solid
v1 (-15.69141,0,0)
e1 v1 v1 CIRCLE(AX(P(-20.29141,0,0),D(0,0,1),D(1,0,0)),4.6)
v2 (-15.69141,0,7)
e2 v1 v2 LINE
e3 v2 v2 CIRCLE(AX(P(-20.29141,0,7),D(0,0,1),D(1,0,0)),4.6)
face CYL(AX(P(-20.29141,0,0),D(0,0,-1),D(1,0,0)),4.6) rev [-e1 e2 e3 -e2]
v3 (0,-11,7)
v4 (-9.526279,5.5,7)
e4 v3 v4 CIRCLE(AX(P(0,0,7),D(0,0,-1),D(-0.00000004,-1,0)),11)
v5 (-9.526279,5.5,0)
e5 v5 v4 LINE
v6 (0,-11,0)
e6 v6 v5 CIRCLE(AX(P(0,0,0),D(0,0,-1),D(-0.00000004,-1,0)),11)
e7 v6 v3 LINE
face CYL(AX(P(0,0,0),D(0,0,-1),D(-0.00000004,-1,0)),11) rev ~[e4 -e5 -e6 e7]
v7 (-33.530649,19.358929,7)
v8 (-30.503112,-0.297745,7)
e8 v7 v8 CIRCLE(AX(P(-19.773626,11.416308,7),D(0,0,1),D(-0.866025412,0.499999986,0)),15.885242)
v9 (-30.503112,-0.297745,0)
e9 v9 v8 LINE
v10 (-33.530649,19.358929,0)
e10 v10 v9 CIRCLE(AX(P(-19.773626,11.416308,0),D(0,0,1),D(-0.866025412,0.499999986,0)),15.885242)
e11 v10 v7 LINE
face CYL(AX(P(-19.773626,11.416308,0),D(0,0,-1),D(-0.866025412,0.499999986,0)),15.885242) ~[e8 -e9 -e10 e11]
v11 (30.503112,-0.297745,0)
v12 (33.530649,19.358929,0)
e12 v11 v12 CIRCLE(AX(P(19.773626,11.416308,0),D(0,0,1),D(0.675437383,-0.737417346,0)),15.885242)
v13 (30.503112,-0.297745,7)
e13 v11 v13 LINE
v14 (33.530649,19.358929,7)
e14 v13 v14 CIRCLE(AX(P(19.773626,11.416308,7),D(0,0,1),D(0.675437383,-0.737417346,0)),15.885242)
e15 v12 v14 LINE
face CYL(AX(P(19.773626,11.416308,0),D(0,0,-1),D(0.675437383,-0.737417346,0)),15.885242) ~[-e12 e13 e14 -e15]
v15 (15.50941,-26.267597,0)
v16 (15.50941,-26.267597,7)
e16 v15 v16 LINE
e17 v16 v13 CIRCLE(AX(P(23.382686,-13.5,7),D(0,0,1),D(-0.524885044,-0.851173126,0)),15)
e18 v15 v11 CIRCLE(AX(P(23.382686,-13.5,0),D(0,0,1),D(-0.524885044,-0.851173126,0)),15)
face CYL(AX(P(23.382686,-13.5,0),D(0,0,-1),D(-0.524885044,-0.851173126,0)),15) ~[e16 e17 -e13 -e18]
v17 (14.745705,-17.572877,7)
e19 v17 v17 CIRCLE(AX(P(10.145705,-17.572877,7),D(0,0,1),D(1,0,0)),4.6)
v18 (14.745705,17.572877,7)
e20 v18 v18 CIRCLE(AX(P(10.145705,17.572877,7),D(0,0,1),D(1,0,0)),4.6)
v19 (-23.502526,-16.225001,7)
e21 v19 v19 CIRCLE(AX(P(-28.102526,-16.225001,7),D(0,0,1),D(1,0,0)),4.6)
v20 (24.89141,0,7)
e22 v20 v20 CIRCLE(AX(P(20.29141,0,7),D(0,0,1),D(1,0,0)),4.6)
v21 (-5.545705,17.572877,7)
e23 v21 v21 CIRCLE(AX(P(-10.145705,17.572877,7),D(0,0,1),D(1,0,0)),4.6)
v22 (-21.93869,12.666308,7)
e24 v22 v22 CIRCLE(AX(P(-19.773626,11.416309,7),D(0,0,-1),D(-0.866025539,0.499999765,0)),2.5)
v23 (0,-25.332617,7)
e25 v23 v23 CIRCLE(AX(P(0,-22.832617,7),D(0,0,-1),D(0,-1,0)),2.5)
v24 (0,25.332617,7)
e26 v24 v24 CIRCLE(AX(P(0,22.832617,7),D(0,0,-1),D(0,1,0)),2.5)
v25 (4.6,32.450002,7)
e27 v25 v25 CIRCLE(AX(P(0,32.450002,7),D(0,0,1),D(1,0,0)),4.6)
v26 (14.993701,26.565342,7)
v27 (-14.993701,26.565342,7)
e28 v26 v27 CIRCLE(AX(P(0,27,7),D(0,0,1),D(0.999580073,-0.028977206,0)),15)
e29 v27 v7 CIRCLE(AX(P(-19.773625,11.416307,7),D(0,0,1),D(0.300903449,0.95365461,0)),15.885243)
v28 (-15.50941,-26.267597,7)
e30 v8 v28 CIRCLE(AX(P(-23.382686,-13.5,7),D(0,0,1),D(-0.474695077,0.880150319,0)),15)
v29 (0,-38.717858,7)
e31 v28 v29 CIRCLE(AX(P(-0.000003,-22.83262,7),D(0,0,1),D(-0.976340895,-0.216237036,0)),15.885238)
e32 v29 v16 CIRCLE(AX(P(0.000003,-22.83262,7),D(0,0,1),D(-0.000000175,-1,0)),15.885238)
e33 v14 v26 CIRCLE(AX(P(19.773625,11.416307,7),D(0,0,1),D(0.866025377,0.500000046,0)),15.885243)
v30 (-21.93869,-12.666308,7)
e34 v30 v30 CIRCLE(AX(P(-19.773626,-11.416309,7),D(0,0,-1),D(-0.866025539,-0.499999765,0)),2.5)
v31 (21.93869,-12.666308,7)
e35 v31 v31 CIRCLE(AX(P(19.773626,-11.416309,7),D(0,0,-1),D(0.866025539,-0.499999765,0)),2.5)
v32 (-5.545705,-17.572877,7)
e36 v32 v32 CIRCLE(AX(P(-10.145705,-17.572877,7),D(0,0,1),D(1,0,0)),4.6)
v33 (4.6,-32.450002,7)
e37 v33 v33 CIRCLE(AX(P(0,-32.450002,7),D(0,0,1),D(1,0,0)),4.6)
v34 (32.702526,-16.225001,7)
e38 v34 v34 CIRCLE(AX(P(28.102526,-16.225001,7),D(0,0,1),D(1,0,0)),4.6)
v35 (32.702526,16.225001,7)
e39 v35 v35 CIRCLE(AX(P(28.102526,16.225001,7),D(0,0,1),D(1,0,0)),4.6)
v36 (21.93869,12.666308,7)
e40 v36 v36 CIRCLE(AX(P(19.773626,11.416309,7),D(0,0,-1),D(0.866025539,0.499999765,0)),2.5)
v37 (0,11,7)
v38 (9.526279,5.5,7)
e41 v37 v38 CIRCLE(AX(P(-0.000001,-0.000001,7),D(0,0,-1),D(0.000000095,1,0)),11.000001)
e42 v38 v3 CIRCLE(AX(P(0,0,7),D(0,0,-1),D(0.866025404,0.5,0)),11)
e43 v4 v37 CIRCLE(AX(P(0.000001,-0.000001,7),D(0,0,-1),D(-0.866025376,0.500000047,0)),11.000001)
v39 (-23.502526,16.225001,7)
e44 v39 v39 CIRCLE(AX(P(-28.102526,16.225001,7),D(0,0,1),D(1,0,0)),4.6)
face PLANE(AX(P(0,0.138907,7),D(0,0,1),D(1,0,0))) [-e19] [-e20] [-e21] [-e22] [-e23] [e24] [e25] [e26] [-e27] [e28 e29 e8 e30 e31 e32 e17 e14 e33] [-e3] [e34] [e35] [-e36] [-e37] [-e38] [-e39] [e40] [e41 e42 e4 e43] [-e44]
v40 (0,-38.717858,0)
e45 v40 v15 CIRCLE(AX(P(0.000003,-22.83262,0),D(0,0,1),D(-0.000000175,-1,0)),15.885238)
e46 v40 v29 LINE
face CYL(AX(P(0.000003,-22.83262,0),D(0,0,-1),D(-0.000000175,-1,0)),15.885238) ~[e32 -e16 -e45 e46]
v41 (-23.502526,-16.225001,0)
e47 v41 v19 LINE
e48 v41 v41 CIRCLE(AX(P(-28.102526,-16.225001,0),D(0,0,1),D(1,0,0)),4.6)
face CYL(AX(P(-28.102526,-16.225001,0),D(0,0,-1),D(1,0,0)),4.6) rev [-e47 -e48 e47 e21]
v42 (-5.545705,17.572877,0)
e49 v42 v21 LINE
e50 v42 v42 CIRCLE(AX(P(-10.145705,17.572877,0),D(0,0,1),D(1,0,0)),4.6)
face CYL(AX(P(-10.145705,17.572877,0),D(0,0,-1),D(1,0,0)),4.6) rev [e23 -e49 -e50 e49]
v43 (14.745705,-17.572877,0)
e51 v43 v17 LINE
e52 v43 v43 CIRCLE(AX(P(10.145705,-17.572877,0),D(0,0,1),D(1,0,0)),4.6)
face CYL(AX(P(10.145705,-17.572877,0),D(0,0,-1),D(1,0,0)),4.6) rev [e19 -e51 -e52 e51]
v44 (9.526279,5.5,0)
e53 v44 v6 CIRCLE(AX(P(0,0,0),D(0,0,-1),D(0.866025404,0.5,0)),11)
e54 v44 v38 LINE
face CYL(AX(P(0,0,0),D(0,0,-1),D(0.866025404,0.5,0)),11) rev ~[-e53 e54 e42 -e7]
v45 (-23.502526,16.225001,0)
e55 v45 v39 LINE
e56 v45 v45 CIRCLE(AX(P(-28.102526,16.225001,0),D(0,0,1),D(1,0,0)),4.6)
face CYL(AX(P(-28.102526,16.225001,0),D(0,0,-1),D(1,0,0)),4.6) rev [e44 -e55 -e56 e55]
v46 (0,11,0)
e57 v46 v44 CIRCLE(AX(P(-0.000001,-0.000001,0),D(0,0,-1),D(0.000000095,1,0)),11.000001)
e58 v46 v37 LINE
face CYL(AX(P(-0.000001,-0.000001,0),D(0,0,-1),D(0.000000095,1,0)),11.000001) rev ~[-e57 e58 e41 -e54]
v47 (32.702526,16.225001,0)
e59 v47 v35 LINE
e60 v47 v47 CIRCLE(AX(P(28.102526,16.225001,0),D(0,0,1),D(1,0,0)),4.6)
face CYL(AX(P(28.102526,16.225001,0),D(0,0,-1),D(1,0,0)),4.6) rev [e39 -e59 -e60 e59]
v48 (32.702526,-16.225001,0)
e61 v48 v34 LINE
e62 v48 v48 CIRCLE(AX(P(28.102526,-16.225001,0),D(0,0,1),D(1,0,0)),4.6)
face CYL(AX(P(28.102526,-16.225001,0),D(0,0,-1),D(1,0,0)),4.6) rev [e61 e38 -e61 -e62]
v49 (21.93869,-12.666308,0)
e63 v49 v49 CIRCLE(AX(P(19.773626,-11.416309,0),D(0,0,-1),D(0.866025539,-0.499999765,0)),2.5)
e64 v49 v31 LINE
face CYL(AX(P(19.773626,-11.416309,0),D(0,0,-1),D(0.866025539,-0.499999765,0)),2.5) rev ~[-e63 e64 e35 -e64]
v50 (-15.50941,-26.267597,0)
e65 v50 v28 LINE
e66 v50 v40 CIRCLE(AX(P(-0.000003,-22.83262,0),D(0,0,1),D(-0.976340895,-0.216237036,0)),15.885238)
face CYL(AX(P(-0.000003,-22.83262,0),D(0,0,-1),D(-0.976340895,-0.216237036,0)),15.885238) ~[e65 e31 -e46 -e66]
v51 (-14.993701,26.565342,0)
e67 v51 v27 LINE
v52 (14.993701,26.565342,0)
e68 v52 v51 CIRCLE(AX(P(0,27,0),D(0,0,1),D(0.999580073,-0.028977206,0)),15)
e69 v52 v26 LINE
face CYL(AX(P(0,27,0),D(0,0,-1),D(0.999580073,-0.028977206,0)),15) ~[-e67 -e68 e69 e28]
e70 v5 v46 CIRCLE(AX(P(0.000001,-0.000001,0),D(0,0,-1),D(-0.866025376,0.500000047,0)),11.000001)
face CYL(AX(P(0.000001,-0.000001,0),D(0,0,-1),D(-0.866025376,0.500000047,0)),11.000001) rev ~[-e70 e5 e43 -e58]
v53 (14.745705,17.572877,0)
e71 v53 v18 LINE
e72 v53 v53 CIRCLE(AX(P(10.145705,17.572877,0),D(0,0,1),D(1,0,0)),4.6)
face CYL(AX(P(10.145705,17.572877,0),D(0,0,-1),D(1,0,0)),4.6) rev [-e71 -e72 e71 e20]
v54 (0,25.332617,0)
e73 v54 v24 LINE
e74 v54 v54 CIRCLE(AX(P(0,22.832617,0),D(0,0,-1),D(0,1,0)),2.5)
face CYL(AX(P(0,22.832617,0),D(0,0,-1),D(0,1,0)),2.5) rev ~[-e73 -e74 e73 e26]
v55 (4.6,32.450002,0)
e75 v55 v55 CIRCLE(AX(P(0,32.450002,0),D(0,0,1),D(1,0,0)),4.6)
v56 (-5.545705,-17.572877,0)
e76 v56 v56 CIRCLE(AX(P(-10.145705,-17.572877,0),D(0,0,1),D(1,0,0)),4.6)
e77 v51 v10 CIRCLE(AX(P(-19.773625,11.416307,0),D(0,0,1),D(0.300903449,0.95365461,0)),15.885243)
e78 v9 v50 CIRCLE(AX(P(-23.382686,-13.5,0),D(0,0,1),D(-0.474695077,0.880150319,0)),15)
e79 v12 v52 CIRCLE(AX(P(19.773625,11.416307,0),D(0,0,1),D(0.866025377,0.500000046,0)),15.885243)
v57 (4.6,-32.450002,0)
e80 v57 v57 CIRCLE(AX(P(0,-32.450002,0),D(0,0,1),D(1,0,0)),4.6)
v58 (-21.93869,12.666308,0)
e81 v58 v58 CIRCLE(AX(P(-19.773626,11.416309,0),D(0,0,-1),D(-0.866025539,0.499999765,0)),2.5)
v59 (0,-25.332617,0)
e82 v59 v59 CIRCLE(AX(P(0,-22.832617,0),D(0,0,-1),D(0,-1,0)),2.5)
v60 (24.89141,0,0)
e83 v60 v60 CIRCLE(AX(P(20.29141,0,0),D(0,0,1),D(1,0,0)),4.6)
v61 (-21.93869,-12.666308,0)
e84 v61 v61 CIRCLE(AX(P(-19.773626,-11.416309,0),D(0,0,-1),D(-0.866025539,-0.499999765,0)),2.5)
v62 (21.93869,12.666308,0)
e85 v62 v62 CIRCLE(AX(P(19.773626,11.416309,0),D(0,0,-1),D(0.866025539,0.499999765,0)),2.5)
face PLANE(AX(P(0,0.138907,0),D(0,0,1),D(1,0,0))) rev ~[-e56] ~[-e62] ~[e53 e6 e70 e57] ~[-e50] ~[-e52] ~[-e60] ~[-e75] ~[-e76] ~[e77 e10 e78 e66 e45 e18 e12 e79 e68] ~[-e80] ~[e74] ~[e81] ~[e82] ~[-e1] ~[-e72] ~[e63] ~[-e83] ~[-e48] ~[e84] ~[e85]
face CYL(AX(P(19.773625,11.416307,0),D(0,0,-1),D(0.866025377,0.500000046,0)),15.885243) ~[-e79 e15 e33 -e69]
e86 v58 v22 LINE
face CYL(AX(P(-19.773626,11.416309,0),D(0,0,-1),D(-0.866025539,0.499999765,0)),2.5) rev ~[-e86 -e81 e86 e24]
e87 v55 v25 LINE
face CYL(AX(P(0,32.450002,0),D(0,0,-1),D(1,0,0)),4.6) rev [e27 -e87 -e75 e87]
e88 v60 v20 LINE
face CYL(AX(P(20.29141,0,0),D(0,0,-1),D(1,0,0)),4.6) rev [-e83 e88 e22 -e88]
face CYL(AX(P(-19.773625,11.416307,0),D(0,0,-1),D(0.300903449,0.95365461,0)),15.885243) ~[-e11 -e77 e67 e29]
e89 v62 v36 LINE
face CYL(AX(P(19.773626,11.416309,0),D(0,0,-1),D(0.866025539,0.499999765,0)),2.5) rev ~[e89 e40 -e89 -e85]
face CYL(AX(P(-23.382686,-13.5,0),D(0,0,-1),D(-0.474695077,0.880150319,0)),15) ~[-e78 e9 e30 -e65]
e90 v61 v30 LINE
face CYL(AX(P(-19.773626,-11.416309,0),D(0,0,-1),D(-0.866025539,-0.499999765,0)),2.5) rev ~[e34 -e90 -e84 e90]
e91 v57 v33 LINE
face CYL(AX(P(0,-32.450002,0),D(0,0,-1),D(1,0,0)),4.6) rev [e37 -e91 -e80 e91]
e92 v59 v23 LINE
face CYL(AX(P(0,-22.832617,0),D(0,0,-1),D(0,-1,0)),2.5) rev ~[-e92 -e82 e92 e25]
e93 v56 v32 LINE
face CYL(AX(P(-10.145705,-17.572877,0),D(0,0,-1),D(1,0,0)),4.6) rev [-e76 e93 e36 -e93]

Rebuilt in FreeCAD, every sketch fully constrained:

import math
import FreeCAD as App
import Part
import Sketcher

doc = App.newDocument("Part")
params = doc.addObject("Spreadsheet::Sheet", "Params")
for row, (alias, value) in enumerate([
    ("sketch1_diameter", "5 mm"),
    ("sketch1_radius", "15 mm"),
    ("sketch1_radius2", "11.000001 mm"),
    ("sketch1_diameter2", "9.2 mm"),
    ("pad1_length", "7 mm"),
], start=1):
    params.set(f"A{row}", alias)
    params.set(f"B{row}", "=" + value)
    params.setAlias(f"B{row}", alias)

body = doc.addObject("PartDesign::Body", "Body")

sketch1 = body.newObject("Sketcher::SketchObject", "Sketch")
sketch1.AttachmentSupport = (doc.getObject("XY_Plane"), [""])
sketch1.MapMode = "FlatFace"
sketch1.addGeometry([
    Part.ArcOfCircle(Part.Circle(App.Vector(19.8, 11.4, 0), App.Vector(0, 0, 1), 15.9), math.radians(-48), math.radians(30)),
    Part.ArcOfCircle(Part.Circle(App.Vector(19.8, 11.4, 0), App.Vector(0, 0, 1), 15.9), math.radians(30), math.radians(108)),
    Part.ArcOfCircle(Part.Circle(App.Vector(0, 27, 0), App.Vector(0, 0, 1), 15), math.radians(-2), math.radians(182)),
    Part.ArcOfCircle(Part.Circle(App.Vector(-19.8, 11.4, 0), App.Vector(0, 0, 1), 15.9), math.radians(72), math.radians(150)),
    Part.ArcOfCircle(Part.Circle(App.Vector(-19.8, 11.4, 0), App.Vector(0, 0, 1), 15.9), math.radians(150), math.radians(228)),
    Part.ArcOfCircle(Part.Circle(App.Vector(-23.4, -13.5, 0), App.Vector(0, 0, 1), 15), math.radians(118), math.radians(302)),
    Part.ArcOfCircle(Part.Circle(App.Vector(0, -22.8, 0), App.Vector(0, 0, 1), 15.9), math.radians(-168), math.radians(-90)),
    Part.ArcOfCircle(Part.Circle(App.Vector(0, -22.8, 0), App.Vector(0, 0, 1), 15.9), math.radians(-90), math.radians(-12)),
    Part.ArcOfCircle(Part.Circle(App.Vector(23.4, -13.5, 0), App.Vector(0, 0, 1), 15), math.radians(-122), math.radians(62)),
    Part.Circle(App.Vector(-28.1, -16.2, 0), App.Vector(0, 0, 1), 4.6),
    Part.Circle(App.Vector(-19.8, -11.4, 0), App.Vector(0, 0, 1), 2.5),
    Part.Circle(App.Vector(-10.1, -17.6, 0), App.Vector(0, 0, 1), 4.6),
    Part.Circle(App.Vector(0, -32.5, 0), App.Vector(0, 0, 1), 4.6),
    Part.Circle(App.Vector(0, -22.8, 0), App.Vector(0, 0, 1), 2.5),
    Part.Circle(App.Vector(10.1, -17.6, 0), App.Vector(0, 0, 1), 4.6),
    Part.Circle(App.Vector(19.8, -11.4, 0), App.Vector(0, 0, 1), 2.5),
    Part.Circle(App.Vector(28.1, -16.2, 0), App.Vector(0, 0, 1), 4.6),
    Part.Circle(App.Vector(-20.3, 0, 0), App.Vector(0, 0, 1), 4.6),
    Part.Circle(App.Vector(-28.1, 16.2, 0), App.Vector(0, 0, 1), 4.6),
    Part.Circle(App.Vector(-19.8, 11.4, 0), App.Vector(0, 0, 1), 2.5),
    Part.Circle(App.Vector(-10.1, 17.6, 0), App.Vector(0, 0, 1), 4.6),
    Part.ArcOfCircle(Part.Circle(App.Vector(0, 0, 0), App.Vector(0, 0, 1), 11), math.radians(90), math.radians(150)),
    Part.ArcOfCircle(Part.Circle(App.Vector(0, 0, 0), App.Vector(0, 0, 1), 11), math.radians(30), math.radians(90)),
    Part.ArcOfCircle(Part.Circle(App.Vector(0, 0, 0), App.Vector(0, 0, 1), 11), math.radians(-90), math.radians(30)),
    Part.ArcOfCircle(Part.Circle(App.Vector(0, 0, 0), App.Vector(0, 0, 1), 11), math.radians(150), math.radians(270)),
    Part.Circle(App.Vector(10.1, 17.6, 0), App.Vector(0, 0, 1), 4.6),
    Part.Circle(App.Vector(20.3, 0, 0), App.Vector(0, 0, 1), 4.6),
    Part.Circle(App.Vector(19.8, 11.4, 0), App.Vector(0, 0, 1), 2.5),
    Part.Circle(App.Vector(28.1, 16.2, 0), App.Vector(0, 0, 1), 4.6),
    Part.Circle(App.Vector(0, 22.8, 0), App.Vector(0, 0, 1), 2.5),
    Part.Circle(App.Vector(0, 32.5, 0), App.Vector(0, 0, 1), 4.6),
], False)
sketch1.addConstraint([
    Sketcher.Constraint("Tangent", 0, 2, 1, 1),
    Sketcher.Constraint("Coincident", 1, 2, 2, 1),
    Sketcher.Constraint("Coincident", 2, 2, 3, 1),
    Sketcher.Constraint("Tangent", 3, 2, 4, 1),
    Sketcher.Constraint("Coincident", 4, 2, 5, 1),
    Sketcher.Constraint("Coincident", 5, 2, 6, 1),
    Sketcher.Constraint("Tangent", 6, 2, 7, 1),
    Sketcher.Constraint("Coincident", 7, 2, 8, 1),
    Sketcher.Constraint("Coincident", 8, 2, 0, 1),
    Sketcher.Constraint("Tangent", 21, 1, 22, 2),
    Sketcher.Constraint("Tangent", 22, 1, 23, 2),
    Sketcher.Constraint("Tangent", 23, 1, 24, 2),
    Sketcher.Constraint("Tangent", 24, 1, 21, 2),
    Sketcher.Constraint("Coincident", 21, 3, -1, 1),
    Sketcher.Constraint("Coincident", 13, 3, 6, 3),
    Sketcher.Constraint("Coincident", 19, 3, 3, 3),
    Sketcher.Constraint("Coincident", 27, 3, 0, 3),
    Sketcher.Constraint("Equal", 0, 1),
    Sketcher.Constraint("Equal", 1, 3),
    Sketcher.Constraint("Equal", 3, 4),
    Sketcher.Constraint("Equal", 2, 5),
    Sketcher.Constraint("Equal", 6, 7),
    Sketcher.Constraint("Equal", 5, 8),
    Sketcher.Constraint("Equal", 9, 11),
    Sketcher.Constraint("Equal", 11, 12),
    Sketcher.Constraint("Equal", 10, 13),
    Sketcher.Constraint("Equal", 12, 14),
    Sketcher.Constraint("Equal", 13, 15),
    Sketcher.Constraint("Equal", 14, 16),
    Sketcher.Constraint("Equal", 16, 17),
    Sketcher.Constraint("Equal", 17, 18),
    Sketcher.Constraint("Equal", 15, 19),
    Sketcher.Constraint("Equal", 18, 20),
    Sketcher.Constraint("Equal", 21, 22),
    Sketcher.Constraint("Equal", 20, 25),
    Sketcher.Constraint("Equal", 25, 26),
    Sketcher.Constraint("Equal", 19, 27),
    Sketcher.Constraint("Equal", 26, 28),
    Sketcher.Constraint("Equal", 27, 29),
    Sketcher.Constraint("Equal", 28, 30),
    Sketcher.Constraint("Symmetric", 0, 3, 10, 3, -1, 1),
    Sketcher.Constraint("Symmetric", 3, 3, 15, 3, -1, 1),
    Sketcher.Constraint("Symmetric", 16, 3, 18, 3, -1, 1),
    Sketcher.Constraint("Symmetric", 14, 3, 20, 3, -1, 1),
    Sketcher.Constraint("Symmetric", 11, 3, 25, 3, -1, 1),
    Sketcher.Constraint("Symmetric", 17, 3, 26, 3, -1, 1),
    Sketcher.Constraint("Symmetric", 9, 3, 28, 3, -1, 1),
    Sketcher.Constraint("Symmetric", 6, 3, 29, 3, -1, 1),
    Sketcher.Constraint("Symmetric", 12, 3, 30, 3, -1, 1),
    Sketcher.Constraint("Symmetric", 0, 3, 3, 3, -2),
    Sketcher.Constraint("Symmetric", 5, 3, 8, 3, -2),
    Sketcher.Constraint("Symmetric", 11, 3, 14, 3, -2),
    Sketcher.Constraint("Symmetric", 9, 3, 16, 3, -2),
    Sketcher.Constraint("PointOnObject", 2, 3, -2),
    Sketcher.Constraint("PointOnObject", 12, 3, -2),
    Sketcher.Constraint("PointOnObject", 13, 3, -2),
    Sketcher.Constraint("PointOnObject", 17, 3, -1),
    Sketcher.Constraint("PointOnObject", 6, 2, -2),
    Sketcher.Constraint("PointOnObject", 21, 1, -2),
    Sketcher.Constraint("PointOnObject", 23, 1, -2),
    Sketcher.Constraint("Horizontal", 0, 2, 3, 2),
    Sketcher.Constraint("Horizontal", 22, 1, 24, 1),
    Sketcher.Constraint("Diameter", 10, 5.0),
    Sketcher.Constraint("Radius", 2, 15.0),
    Sketcher.Constraint("Radius", 21, 11.000001),
    Sketcher.Constraint("Diameter", 9, 9.2),
    Sketcher.Constraint("DistanceY", -1, 1, 2, 3, 27.0),
    Sketcher.Constraint("DistanceY", 5, 3, -1, 1, 13.5),
    Sketcher.Constraint("DistanceY", -1, 1, 22, 1, 5.5),
    Sketcher.Constraint("DistanceY", 12, 3, -1, 1, 32.450002),
    Sketcher.Constraint("DistanceY", 9, 3, -1, 1, 16.225001),
    Sketcher.Constraint("Radius", 0, 15.885242),
    Sketcher.Constraint("Radius", 6, 15.885238),
    Sketcher.Constraint("DistanceX", 2, 2, -1, 1, 14.993701),
    Sketcher.Constraint("DistanceX", 9, 3, 3, 3, 8.328901),
    Sketcher.Constraint("DistanceX", 26, 3, 8, 2, 10.211702),
    Sketcher.Constraint("DistanceY", -1, 1, 0, 3, 11.416308),
    Sketcher.Constraint("DistanceY", 6, 3, -1, 1, 22.83262),
    Sketcher.Constraint("DistanceX", 17, 3, -1, 1, 20.29141),
    Sketcher.Constraint("DistanceX", -1, 1, 0, 2, 33.530649),
    Sketcher.Constraint("DistanceX", 10, 3, 11, 3, 9.627921),
    Sketcher.Constraint("DistanceY", 11, 3, 10, 3, 6.156568),
])
sketch1.setExpression("Constraints[62]", "Params.sketch1_diameter")
sketch1.setExpression("Constraints[63]", "Params.sketch1_radius")
sketch1.setExpression("Constraints[64]", "Params.sketch1_radius2")
sketch1.setExpression("Constraints[65]", "Params.sketch1_diameter2")
pad1 = body.newObject("PartDesign::Pad", "Pad")
pad1.Profile = sketch1
pad1.setExpression("Length", "Params.pad1_length")

doc.recompute()
